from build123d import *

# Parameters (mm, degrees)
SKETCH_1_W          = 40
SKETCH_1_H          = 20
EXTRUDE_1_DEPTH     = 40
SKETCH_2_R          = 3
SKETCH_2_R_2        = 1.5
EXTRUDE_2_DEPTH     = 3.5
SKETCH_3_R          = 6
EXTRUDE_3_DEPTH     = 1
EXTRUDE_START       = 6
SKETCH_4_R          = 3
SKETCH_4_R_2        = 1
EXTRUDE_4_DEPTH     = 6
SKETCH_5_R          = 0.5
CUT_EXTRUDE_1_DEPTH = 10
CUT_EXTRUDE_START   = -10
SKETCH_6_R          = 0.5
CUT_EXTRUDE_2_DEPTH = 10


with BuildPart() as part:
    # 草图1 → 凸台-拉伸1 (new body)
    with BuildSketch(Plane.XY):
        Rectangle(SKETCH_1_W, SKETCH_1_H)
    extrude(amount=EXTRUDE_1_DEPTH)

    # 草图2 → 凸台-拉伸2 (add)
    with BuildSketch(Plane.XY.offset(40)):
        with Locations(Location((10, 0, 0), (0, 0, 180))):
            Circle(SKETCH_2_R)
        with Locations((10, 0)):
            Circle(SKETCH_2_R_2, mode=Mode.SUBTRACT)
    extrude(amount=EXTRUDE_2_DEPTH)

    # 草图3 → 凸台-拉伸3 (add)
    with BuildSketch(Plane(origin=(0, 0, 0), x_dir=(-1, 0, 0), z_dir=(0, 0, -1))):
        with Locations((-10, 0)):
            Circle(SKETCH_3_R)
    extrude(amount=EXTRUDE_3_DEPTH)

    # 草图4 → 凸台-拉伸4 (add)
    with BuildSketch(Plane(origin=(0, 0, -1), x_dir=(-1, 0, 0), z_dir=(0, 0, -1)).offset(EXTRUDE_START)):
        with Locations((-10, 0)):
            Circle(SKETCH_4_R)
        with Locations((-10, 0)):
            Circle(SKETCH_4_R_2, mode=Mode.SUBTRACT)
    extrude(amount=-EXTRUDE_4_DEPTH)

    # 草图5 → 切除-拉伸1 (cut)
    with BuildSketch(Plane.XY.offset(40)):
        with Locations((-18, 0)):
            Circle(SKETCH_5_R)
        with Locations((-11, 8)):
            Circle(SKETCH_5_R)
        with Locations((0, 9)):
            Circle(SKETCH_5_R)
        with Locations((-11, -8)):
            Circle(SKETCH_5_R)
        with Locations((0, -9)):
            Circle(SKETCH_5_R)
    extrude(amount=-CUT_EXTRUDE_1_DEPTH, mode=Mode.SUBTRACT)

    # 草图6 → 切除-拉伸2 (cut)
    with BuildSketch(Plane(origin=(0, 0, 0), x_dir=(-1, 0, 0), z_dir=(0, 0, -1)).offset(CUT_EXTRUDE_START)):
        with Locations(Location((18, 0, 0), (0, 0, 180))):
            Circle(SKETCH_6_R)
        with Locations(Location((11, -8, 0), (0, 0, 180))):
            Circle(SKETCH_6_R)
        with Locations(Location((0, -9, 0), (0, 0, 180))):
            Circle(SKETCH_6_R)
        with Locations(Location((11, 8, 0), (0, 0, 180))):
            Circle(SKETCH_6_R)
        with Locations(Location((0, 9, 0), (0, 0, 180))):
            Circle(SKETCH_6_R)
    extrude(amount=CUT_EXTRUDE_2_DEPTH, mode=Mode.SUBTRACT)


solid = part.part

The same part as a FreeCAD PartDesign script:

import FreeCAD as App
import Part
import Sketcher

V = App.Vector

doc = App.newDocument("Part")
body = doc.addObject("PartDesign::Body", "Body")

# Sketch on XY plane
sketch1 = body.newObject("Sketcher::SketchObject", "Sketch")
sketch1.AttachmentSupport = (doc.getObject("XY_Plane"), [""])
sketch1.MapMode = "FlatFace"
sketch1.addGeometry([
    Part.LineSegment(V(-20, 10, 0), V(-20, -10, 0)),
    Part.LineSegment(V(-20, -10, 0), V(20, -10, 0)),
    Part.LineSegment(V(20, -10, 0), V(20, 10, 0)),
    Part.LineSegment(V(20, 10, 0), V(-20, 10, 0)),
], False)
sketch1.addConstraint([
    Sketcher.Constraint("Coincident", 0, 2, 1, 1),
    Sketcher.Constraint("Coincident", 1, 2, 2, 1),
    Sketcher.Constraint("Coincident", 2, 2, 3, 1),
    Sketcher.Constraint("Coincident", 3, 2, 0, 1),
    Sketcher.Constraint("Vertical", 0),
    Sketcher.Constraint("Horizontal", 1),
    Sketcher.Constraint("Vertical", 2),
    Sketcher.Constraint("Horizontal", 3),
    Sketcher.Constraint("Symmetric", 0, 2, 2, 2, -1, 1),
    Sketcher.Constraint("DistanceX", 1, 1, 1, 2, 40.0),
    Sketcher.Constraint("DistanceY", 0, 2, 0, 1, 20.0),
])
pad1 = body.newObject("PartDesign::Pad", "Pad")
pad1.Profile = sketch1
pad1.Length = 40

# Sketch on XY plane
sketch2 = body.newObject("Sketcher::SketchObject", "Sketch001")
sketch2.AttachmentSupport = (doc.getObject("XY_Plane"), [""])
sketch2.MapMode = "FlatFace"
sketch2.AttachmentOffset = App.Placement(V(0, 0, 40), App.Rotation())
sketch2.addGeometry([
    Part.Circle(V(10, 0, 0), V(0, 0, 1), 3),
    Part.Circle(V(10, 0, 0), V(0, 0, 1), 1.5),
], False)
sketch2.addConstraint([
    Sketcher.Constraint("Coincident", 1, 3, 0, 3),
    Sketcher.Constraint("PointOnObject", 0, 3, -1),
    Sketcher.Constraint("Diameter", 0, 6.0),
    Sketcher.Constraint("Diameter", 1, 3.0),
    Sketcher.Constraint("DistanceX", -1, 1, 0, 3, 10.0),
])
pad2 = body.newObject("PartDesign::Pad", "Pad001")
pad2.Profile = sketch2
pad2.Length = 3.5

# Sketch on XY plane
sketch3 = body.newObject("Sketcher::SketchObject", "Sketch002")
sketch3.AttachmentSupport = (doc.getObject("XY_Plane"), [""])
sketch3.MapMode = "FlatFace"
sketch3.addGeometry(Part.Circle(V(10, 0, 0), V(0, 0, 1), 6), False)
sketch3.addConstraint([
    Sketcher.Constraint("PointOnObject", 0, 3, -1),
    Sketcher.Constraint("Diameter", 0, 12.0),
    Sketcher.Constraint("DistanceX", -1, 1, 0, 3, 10.0),
])
pad3 = body.newObject("PartDesign::Pad", "Pad002")
pad3.Profile = sketch3
pad3.Length = 1
pad3.Reversed = True

# Sketch on XY plane
sketch4 = body.newObject("Sketcher::SketchObject", "Sketch003")
sketch4.AttachmentSupport = (doc.getObject("XY_Plane"), [""])
sketch4.MapMode = "FlatFace"
sketch4.AttachmentOffset = App.Placement(V(0, 0, -7), App.Rotation())
sketch4.addGeometry([
    Part.Circle(V(10, 0, 0), V(0, 0, 1), 3),
    Part.Circle(V(10, 0, 0), V(0, 0, 1), 1),
], False)
sketch4.addConstraint([
    Sketcher.Constraint("Coincident", 1, 3, 0, 3),
    Sketcher.Constraint("PointOnObject", 0, 3, -1),
    Sketcher.Constraint("Diameter", 0, 6.0),
    Sketcher.Constraint("Diameter", 1, 2.0),
    Sketcher.Constraint("DistanceX", -1, 1, 0, 3, 10.0),
])
pad4 = body.newObject("PartDesign::Pad", "Pad003")
pad4.Profile = sketch4
pad4.Length = 6

# Sketch on XY plane
sketch5 = body.newObject("Sketcher::SketchObject", "Sketch004")
sketch5.AttachmentSupport = (doc.getObject("XY_Plane"), [""])
sketch5.MapMode = "FlatFace"
sketch5.AttachmentOffset = App.Placement(V(0, 0, 40), App.Rotation())
sketch5.addGeometry([
    Part.Circle(V(-18, 0, 0), V(0, 0, 1), 0.5),  # 0
    Part.Circle(V(-11, 8, 0), V(0, 0, 1), 0.5),  # 1
    Part.Circle(V(0, 9, 0), V(0, 0, 1), 0.5),  # 2
    Part.Circle(V(-11, -8, 0), V(0, 0, 1), 0.5),  # 3
    Part.Circle(V(0, -9, 0), V(0, 0, 1), 0.5),  # 4
], False)
sketch5.addConstraint([
    Sketcher.Constraint("Equal", 0, 1),
    Sketcher.Constraint("Equal", 1, 2),
    Sketcher.Constraint("Equal", 2, 3),
    Sketcher.Constraint("Equal", 3, 4),
    Sketcher.Constraint("Symmetric", 2, 3, 4, 3, -1, 1),
    Sketcher.Constraint("Symmetric", 1, 3, 3, 3, -1),
    Sketcher.Constraint("PointOnObject", 0, 3, -1),
    Sketcher.Constraint("PointOnObject", 2, 3, -2),
    Sketcher.Constraint("Diameter", 0, 1.0),
    Sketcher.Constraint("DistanceX", 0, 3, -1, 1, 18.0),
    Sketcher.Constraint("DistanceX", 1, 3, -1, 1, 11.0),
    Sketcher.Constraint("DistanceY", -1, 1, 1, 3, 8.0),
    Sketcher.Constraint("DistanceY", -1, 1, 2, 3, 9.0),
])
pocket1 = body.newObject("PartDesign::Pocket", "Pocket")
pocket1.Profile = sketch5
pocket1.Length = 10

# Sketch on XY plane
sketch6 = body.newObject("Sketcher::SketchObject", "Sketch005")
sketch6.AttachmentSupport = (doc.getObject("XY_Plane"), [""])
sketch6.MapMode = "FlatFace"
sketch6.AttachmentOffset = App.Placement(V(0, 0, 10), App.Rotation())
sketch6.addGeometry([
    Part.Circle(V(-18, 0, 0), V(0, 0, 1), 0.5),  # 0
    Part.Circle(V(-11, -8, 0), V(0, 0, 1), 0.5),  # 1
    Part.Circle(V(0, -9, 0), V(0, 0, 1), 0.5),  # 2
    Part.Circle(V(-11, 8, 0), V(0, 0, 1), 0.5),  # 3
    Part.Circle(V(0, 9, 0), V(0, 0, 1), 0.5),  # 4
], False)
sketch6.addConstraint([
    Sketcher.Constraint("Equal", 0, 1),
    Sketcher.Constraint("Equal", 1, 2),
    Sketcher.Constraint("Equal", 2, 3),
    Sketcher.Constraint("Equal", 3, 4),
    Sketcher.Constraint("Symmetric", 2, 3, 4, 3, -1, 1),
    Sketcher.Constraint("Symmetric", 1, 3, 3, 3, -1),
    Sketcher.Constraint("PointOnObject", 0, 3, -1),
    Sketcher.Constraint("PointOnObject", 2, 3, -2),
    Sketcher.Constraint("Diameter", 0, 1.0),
    Sketcher.Constraint("DistanceX", 0, 3, -1, 1, 18.0),
    Sketcher.Constraint("DistanceX", 1, 3, -1, 1, 11.0),
    Sketcher.Constraint("DistanceY", 1, 3, -1, 1, 8.0),
    Sketcher.Constraint("DistanceY", 2, 3, -1, 1, 9.0),
])
pocket2 = body.newObject("PartDesign::Pocket", "Pocket001")
pocket2.Profile = sketch6
pocket2.Length = 10

doc.recompute()
